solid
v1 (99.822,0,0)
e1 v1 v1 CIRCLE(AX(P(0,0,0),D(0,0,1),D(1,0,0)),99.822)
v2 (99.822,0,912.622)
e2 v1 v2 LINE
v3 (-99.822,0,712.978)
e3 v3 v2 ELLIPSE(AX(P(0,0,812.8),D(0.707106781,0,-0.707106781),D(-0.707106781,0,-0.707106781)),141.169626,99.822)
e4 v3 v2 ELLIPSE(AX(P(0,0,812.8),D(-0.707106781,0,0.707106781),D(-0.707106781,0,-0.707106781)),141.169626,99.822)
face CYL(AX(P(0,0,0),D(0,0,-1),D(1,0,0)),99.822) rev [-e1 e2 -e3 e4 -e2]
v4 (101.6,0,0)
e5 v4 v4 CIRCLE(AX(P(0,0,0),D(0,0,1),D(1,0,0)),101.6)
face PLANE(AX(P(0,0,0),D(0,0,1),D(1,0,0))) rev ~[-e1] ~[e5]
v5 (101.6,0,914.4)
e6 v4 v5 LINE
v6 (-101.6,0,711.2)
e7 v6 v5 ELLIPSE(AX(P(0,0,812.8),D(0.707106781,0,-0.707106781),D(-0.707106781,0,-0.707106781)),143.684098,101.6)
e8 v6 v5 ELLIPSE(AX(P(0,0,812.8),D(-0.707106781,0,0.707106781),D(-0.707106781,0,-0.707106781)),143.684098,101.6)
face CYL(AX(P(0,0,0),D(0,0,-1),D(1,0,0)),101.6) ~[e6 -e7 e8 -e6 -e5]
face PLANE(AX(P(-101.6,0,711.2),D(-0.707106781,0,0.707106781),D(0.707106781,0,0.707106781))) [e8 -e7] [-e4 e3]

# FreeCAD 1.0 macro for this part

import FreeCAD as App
import Part
import Sketcher

V = App.Vector
Q = App.Units.Quantity


def add_polygon(sketch, points):
    """Adds a closed chain of lines whose ends are joined by coincident constraints."""
    first, n = sketch.GeometryCount, len(points)
    for a, b in zip(points, points[1:] + points[:1]):
        sketch.addGeometry(Part.LineSegment(App.Vector(*a, 0), App.Vector(*b, 0)), False)
    for i in range(n):
        sketch.addConstraint(Sketcher.Constraint("Coincident", first + i, 2, first + (i + 1) % n, 1))

doc = App.newDocument("Part")
body = doc.addObject("PartDesign::Body", "Body")

# Sketch on XY plane
sketch1 = body.newObject("Sketcher::SketchObject", "Sketch")
sketch1.AttachmentSupport = (doc.getObject("XY_Plane"), [""])
sketch1.MapMode = "FlatFace"
sketch1.addGeometry([
    Part.Circle(V(0, 0, 0), V(0, 0, 1), 102),
    Part.Circle(V(0, 0, 0), V(0, 0, 1), 100),
], False)
sketch1.addConstraint([
    Sketcher.Constraint("Coincident", 0, 3, -1, 1),
    Sketcher.Constraint("Coincident", 1, 3, -1, 1),
    Sketcher.Constraint("Diameter", 0, Q("8 in")),
    Sketcher.Constraint("Diameter", 1, Q("7.86 in")),
])
pad1 = body.newObject("PartDesign::Pad", "Pad")
pad1.Profile = sketch1
pad1.Length = Q("36 in")

# Sketch on XZ plane
sketch2 = body.newObject("Sketcher::SketchObject", "Sketch001")
sketch2.AttachmentSupport = (doc.getObject("XZ_Plane"), [""])
sketch2.MapMode = "FlatFace"
add_polygon(sketch2, [(102, 914), (-102, 914), (-102, 711)])  # lines 0-2
sketch2.addConstraint([
    Sketcher.Constraint("Horizontal", 0),
    Sketcher.Constraint("Vertical", 1),
    Sketcher.Constraint("Equal", 0, 1),
    Sketcher.Constraint("DistanceX", 0, 2, 0, 1, Q("8 in")),
    Sketcher.Constraint("DistanceX", 0, 2, -1, 1, Q("4 in")),
    Sketcher.Constraint("DistanceY", -1, 1, 0, 2, Q("36 in")),
])
pocket1 = body.newObject("PartDesign::Pocket", "Pocket")
pocket1.Profile = sketch2
pocket1.Type = "ThroughAll"
pocket1.Midplane = True

doc.recompute()
